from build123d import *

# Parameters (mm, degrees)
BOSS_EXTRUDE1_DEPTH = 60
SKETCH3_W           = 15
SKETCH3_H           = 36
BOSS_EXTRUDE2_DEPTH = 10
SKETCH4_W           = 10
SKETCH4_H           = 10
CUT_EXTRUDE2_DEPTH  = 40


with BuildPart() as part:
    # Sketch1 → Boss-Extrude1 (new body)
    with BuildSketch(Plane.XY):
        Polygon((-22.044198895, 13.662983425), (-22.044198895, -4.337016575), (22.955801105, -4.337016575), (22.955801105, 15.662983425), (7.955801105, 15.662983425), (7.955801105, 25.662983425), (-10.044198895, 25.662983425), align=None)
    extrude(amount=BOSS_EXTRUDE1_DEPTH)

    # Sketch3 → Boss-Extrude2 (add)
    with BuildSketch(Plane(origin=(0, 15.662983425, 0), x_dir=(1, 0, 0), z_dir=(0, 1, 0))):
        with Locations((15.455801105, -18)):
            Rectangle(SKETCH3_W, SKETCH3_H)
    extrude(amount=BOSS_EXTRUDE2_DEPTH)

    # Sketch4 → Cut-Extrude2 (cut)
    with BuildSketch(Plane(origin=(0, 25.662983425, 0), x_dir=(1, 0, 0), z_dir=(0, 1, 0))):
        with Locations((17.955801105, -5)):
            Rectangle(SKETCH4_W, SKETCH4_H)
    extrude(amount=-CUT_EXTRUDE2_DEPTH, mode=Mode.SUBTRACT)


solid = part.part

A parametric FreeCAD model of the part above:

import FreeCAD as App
import Part
import Sketcher


def add_polygon(sketch, points):
    """Adds a closed chain of lines whose ends are joined by coincident constraints."""
    first, n = sketch.GeometryCount, len(points)
    for a, b in zip(points, points[1:] + points[:1]):
        sketch.addGeometry(Part.LineSegment(App.Vector(*a, 0), App.Vector(*b, 0)), False)
    for i in range(n):
        sketch.addConstraint(Sketcher.Constraint("Coincident", first + i, 2, first + (i + 1) % n, 1))

doc = App.newDocument("Part")
body = doc.addObject("PartDesign::Body", "Body")

sketch1 = doc.addObject("Sketcher::SketchObject", "Sketch")
body.addObject(sketch1)
sketch1.AttachmentSupport = (doc.XY_Plane, [""])
sketch1.MapMode = "FlatFace"
add_polygon(sketch1, [(-22, 14), (-22, -4), (23, -4), (23, 16), (8, 16), (8, 26), (-10, 26)])
sketch1.addConstraint([
    Sketcher.Constraint("Vertical", 0),
    Sketcher.Constraint("Horizontal", 1),
    Sketcher.Constraint("Vertical", 2),
    Sketcher.Constraint("Horizontal", 3),
    Sketcher.Constraint("Vertical", 4),
    Sketcher.Constraint("Horizontal", 5),
    Sketcher.Constraint("Equal", 5, 0),
    Sketcher.Constraint("DistanceX", 1, 1, 1, 2, 45.0),
    Sketcher.Constraint("DistanceX", 3, 2, 3, 1, 15.0),
    Sketcher.Constraint("DistanceX", 5, 2, 5, 1, 18.0),
    Sketcher.Constraint("DistanceY", 2, 1, 2, 2, 20.0),
    Sketcher.Constraint("DistanceY", 4, 1, 4, 2, 10.0),
    Sketcher.Constraint("DistanceX", 0, 2, -1, 1, 22.044199),
    Sketcher.Constraint("DistanceY", 0, 2, -1, 1, 4.337017),
])
pad1 = doc.addObject("PartDesign::Pad", "Pad")
body.addObject(pad1)
pad1.Profile = sketch1
pad1.Length = 60

sketch2 = doc.addObject("Sketcher::SketchObject", "Sketch001")
body.addObject(sketch2)
sketch2.AttachmentSupport = (doc.XZ_Plane, [""])
sketch2.MapMode = "FlatFace"
sketch2.AttachmentOffset = App.Placement(App.Vector(0, 0, -15.662983), App.Rotation())
add_polygon(sketch2, [(8, 0), (8, 36), (23, 36), (23, 0)])
sketch2.addConstraint([
    Sketcher.Constraint("Vertical", 0),
    Sketcher.Constraint("Horizontal", 1),
    Sketcher.Constraint("Vertical", 2),
    Sketcher.Constraint("Horizontal", 3),
    Sketcher.Constraint("PointOnObject", 2, 2, -1),
    Sketcher.Constraint("DistanceX", 1, 1, 1, 2, 15.0),
    Sketcher.Constraint("DistanceY", 0, 1, 0, 2, 36.0),
    Sketcher.Constraint("DistanceX", -1, 1, 0, 2, 7.955801),
])
pad2 = doc.addObject("PartDesign::Pad", "Pad001")
body.addObject(pad2)
pad2.Profile = sketch2
pad2.Length = 10
pad2.Reversed = True

sketch3 = doc.addObject("Sketcher::SketchObject", "Sketch002")
body.addObject(sketch3)
sketch3.AttachmentSupport = (doc.XZ_Plane, [""])
sketch3.MapMode = "FlatFace"
sketch3.AttachmentOffset = App.Placement(App.Vector(0, 0, -25.662983), App.Rotation())
add_polygon(sketch3, [(13, 0), (13, 10), (23, 10), (23, 0)])
sketch3.addConstraint([
    Sketcher.Constraint("Vertical", 0),
    Sketcher.Constraint("Horizontal", 1),
    Sketcher.Constraint("Vertical", 2),
    Sketcher.Constraint("Horizontal", 3),
    Sketcher.Constraint("PointOnObject", 2, 2, -1),
    Sketcher.Constraint("Equal", 3, 0),
    Sketcher.Constraint("DistanceX", 1, 1, 1, 2, 10.0),
    Sketcher.Constraint("DistanceX", -1, 1, 0, 2, 12.955801),
])
pocket1 = doc.addObject("PartDesign::Pocket", "Pocket")
body.addObject(pocket1)
pocket1.Profile = sketch3
pocket1.Length = 40
pocket1.Reversed = True

doc.recompute()
